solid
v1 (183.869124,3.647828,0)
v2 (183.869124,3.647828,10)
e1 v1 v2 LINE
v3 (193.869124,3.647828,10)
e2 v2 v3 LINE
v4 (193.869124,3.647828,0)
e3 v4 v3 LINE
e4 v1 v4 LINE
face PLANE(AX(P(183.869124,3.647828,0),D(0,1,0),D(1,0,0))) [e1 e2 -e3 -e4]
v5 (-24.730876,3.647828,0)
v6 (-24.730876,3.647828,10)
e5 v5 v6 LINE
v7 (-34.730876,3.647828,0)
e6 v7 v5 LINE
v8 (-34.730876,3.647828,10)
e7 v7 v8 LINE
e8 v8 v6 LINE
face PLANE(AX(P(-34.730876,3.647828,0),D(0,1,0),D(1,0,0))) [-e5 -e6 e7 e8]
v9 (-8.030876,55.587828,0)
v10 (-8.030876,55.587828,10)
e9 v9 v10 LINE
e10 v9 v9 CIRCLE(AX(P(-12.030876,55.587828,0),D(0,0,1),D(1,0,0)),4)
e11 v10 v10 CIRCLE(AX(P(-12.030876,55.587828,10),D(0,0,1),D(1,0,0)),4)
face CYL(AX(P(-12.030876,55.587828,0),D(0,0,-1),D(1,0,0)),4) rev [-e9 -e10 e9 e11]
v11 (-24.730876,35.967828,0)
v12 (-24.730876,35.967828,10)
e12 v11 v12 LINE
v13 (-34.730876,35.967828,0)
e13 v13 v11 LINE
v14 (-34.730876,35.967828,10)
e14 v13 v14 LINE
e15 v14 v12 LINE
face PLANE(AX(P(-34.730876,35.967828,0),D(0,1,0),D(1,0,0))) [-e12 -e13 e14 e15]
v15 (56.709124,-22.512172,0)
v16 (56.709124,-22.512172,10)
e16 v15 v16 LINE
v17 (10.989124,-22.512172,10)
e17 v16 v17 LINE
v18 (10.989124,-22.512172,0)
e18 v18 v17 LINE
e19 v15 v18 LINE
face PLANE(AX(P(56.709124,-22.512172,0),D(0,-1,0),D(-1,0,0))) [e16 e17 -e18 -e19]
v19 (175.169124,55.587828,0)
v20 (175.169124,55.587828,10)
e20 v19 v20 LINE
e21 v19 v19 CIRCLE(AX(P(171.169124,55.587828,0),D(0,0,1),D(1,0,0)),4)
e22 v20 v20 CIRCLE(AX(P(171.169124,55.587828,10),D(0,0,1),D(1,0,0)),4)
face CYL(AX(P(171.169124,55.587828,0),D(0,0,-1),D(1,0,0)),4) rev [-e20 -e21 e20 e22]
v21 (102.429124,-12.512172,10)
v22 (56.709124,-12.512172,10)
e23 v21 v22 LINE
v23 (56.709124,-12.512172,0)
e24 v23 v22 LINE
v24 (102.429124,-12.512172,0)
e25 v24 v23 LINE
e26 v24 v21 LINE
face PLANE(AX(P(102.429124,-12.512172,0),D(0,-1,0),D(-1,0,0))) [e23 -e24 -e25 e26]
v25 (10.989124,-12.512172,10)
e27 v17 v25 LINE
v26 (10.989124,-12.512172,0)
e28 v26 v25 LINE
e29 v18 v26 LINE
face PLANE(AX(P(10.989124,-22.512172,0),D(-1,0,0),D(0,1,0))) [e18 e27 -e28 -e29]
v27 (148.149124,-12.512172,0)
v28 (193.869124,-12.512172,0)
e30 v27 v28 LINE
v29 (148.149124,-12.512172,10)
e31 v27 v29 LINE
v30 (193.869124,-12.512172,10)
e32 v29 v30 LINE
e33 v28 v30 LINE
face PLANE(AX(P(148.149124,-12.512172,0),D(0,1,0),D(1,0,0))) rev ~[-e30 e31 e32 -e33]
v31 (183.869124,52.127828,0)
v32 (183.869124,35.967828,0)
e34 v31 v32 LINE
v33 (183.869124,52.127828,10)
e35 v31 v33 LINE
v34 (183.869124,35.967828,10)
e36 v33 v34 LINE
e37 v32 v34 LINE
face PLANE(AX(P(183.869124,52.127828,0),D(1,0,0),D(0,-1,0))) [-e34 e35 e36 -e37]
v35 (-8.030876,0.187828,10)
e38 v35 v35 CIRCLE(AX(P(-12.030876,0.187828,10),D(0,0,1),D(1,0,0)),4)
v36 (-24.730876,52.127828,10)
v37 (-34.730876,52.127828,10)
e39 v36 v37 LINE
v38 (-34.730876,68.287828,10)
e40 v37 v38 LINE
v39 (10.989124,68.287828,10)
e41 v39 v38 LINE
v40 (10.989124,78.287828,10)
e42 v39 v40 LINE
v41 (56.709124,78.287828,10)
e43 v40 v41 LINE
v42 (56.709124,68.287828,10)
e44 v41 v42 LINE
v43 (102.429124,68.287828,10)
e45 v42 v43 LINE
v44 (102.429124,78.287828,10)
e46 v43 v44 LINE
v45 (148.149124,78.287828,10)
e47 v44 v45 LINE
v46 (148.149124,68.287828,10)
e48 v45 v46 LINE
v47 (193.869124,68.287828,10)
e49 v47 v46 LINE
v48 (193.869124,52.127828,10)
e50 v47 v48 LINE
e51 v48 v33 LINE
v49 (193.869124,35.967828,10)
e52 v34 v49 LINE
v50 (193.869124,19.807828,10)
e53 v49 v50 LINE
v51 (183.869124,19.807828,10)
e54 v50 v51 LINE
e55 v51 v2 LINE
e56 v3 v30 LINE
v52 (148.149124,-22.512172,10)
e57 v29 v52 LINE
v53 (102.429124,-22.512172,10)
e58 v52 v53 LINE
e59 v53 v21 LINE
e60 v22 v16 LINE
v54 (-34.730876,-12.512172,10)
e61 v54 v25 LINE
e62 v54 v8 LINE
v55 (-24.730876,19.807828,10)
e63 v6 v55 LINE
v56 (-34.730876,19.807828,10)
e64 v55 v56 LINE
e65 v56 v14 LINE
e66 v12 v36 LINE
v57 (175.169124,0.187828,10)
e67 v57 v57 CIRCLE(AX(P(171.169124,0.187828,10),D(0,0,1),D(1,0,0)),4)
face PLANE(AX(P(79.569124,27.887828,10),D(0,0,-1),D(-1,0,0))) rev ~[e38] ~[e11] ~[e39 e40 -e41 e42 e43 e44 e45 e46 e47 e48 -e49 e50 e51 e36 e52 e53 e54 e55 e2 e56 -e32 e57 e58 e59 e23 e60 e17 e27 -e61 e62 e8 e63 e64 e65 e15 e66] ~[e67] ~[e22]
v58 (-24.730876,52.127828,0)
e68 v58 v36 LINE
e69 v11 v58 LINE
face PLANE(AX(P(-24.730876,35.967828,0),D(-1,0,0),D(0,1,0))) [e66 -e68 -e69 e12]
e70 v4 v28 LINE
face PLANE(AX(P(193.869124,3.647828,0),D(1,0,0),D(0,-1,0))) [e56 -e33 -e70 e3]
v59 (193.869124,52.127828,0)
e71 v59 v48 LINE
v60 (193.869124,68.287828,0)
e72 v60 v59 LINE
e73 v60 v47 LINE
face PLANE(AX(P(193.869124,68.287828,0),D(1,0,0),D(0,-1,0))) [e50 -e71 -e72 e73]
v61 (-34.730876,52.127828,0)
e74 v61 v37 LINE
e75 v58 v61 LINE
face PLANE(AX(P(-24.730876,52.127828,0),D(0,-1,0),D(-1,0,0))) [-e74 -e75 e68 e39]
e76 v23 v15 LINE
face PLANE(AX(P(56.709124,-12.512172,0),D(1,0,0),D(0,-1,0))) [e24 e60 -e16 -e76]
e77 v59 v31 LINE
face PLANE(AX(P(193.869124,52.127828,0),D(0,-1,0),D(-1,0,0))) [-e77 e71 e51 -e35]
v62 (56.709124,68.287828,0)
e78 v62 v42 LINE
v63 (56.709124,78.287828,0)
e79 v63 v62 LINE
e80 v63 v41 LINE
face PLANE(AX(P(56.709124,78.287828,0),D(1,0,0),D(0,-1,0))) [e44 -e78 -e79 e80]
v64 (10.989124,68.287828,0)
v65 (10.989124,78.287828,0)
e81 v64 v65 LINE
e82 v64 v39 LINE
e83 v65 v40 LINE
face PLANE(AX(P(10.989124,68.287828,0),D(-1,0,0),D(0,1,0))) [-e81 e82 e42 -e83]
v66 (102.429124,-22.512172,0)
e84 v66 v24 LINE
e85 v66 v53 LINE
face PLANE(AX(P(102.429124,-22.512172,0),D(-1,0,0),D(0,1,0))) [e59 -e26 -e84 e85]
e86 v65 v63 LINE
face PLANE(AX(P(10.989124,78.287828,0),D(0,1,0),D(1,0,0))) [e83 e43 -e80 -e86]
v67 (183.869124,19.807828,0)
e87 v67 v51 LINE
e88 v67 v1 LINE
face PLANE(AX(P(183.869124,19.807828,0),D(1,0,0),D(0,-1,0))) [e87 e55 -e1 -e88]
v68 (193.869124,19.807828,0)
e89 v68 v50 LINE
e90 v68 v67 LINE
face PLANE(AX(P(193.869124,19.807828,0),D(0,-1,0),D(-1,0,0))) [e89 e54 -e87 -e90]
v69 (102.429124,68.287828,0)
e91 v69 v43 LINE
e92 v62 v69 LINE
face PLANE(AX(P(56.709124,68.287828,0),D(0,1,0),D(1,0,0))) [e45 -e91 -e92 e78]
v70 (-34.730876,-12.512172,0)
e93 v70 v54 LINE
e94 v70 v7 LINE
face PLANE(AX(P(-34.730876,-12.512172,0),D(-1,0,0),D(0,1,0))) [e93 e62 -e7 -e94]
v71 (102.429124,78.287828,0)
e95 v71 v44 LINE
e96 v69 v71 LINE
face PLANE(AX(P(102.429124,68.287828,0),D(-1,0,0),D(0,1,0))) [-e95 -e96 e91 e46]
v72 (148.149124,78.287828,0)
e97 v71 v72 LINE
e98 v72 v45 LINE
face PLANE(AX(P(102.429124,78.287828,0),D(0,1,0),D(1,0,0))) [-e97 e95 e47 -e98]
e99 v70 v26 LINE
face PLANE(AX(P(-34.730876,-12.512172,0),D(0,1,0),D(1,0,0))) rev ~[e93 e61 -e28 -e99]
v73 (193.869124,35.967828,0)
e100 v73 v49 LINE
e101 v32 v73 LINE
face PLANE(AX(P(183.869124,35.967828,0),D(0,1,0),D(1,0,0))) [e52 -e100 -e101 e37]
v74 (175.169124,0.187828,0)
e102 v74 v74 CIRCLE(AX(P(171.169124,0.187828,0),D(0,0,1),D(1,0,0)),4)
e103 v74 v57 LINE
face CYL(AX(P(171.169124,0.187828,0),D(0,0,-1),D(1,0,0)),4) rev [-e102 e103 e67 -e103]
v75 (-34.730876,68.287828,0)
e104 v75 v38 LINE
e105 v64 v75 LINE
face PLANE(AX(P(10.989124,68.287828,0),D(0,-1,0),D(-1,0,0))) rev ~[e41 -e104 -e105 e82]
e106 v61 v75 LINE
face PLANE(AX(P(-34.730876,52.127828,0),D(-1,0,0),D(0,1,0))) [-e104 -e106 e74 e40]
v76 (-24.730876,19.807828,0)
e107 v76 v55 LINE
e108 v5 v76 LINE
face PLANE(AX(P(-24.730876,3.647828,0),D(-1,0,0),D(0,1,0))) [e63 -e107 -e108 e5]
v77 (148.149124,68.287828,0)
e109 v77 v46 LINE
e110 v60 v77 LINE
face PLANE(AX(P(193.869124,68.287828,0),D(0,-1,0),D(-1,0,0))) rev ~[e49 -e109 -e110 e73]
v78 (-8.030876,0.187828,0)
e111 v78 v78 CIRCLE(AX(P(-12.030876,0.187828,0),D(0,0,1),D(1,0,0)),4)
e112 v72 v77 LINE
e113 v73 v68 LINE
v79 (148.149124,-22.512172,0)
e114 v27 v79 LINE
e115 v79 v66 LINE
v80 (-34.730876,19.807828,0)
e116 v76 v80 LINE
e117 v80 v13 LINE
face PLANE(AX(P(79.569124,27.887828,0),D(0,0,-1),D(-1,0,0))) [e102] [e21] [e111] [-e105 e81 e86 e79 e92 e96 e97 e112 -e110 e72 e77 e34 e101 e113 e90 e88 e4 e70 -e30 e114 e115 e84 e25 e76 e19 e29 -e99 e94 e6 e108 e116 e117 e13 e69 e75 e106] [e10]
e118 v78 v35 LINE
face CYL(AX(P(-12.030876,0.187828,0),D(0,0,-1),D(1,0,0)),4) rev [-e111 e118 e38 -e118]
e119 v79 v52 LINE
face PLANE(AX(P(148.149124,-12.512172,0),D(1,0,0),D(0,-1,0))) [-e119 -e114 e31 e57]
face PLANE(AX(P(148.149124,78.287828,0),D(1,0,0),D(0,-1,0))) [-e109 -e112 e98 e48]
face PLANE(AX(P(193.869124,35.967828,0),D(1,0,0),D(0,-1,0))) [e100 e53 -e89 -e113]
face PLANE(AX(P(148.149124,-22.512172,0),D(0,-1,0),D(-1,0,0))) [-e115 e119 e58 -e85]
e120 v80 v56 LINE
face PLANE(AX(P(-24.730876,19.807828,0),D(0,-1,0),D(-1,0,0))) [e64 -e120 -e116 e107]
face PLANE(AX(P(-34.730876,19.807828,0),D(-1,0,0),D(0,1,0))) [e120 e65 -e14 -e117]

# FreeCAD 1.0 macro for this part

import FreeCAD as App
import Part
import Sketcher
from FreeCAD import Vector
Q = App.Units.Quantity


def add_polygon(sketch, points):
    """Adds a closed chain of lines whose ends are joined by coincident constraints."""
    first, n = sketch.GeometryCount, len(points)
    for a, b in zip(points, points[1:] + points[:1]):
        sketch.addGeometry(Part.LineSegment(App.Vector(*a, 0), App.Vector(*b, 0)), False)
    for i in range(n):
        sketch.addConstraint(Sketcher.Constraint("Coincident", first + i, 2, first + (i + 1) % n, 1))

doc = App.newDocument("Part")
body = doc.addObject("PartDesign::Body", "Body")

# Sketch on XY plane
sketch1 = body.newObject("Sketcher::SketchObject", "Sketch")
sketch1.AttachmentSupport = (doc.getObject("XY_Plane"), [""])
sketch1.MapMode = "FlatFace"
add_polygon(sketch1, [(56.7, -12.5), (102.4, -12.5), (102.4, -22.5), (148.1, -22.5), (148.1, -12.5), (193.9, -12.5), (193.9, 3.6), (183.9, 3.6), (183.9, 19.8), (193.9, 19.8), (193.9, 36), (183.9, 36), (183.9, 52.1), (193.9, 52.1), (193.9, 68.3), (148.1, 68.3), (148.1, 78.3), (102.4, 78.3), (102.4, 68.3), (56.7, 68.3), (56.7, 78.3), (11, 78.3), (11, 68.3), (-34.7, 68.3), (-34.7, 52.1), (-24.7, 52.1), (-24.7, 36), (-34.7, 36), (-34.7, 19.8), (-24.7, 19.8), (-24.7, 3.6), (-34.7, 3.6), (-34.7, -12.5), (11, -12.5), (11, -22.5), (56.7, -22.5)])  # lines 0-35
sketch1.addGeometry(Part.Circle(Vector(171.2, 0.2, 0), Vector(0, 0, 1), 4), False)  # 36
sketch1.addGeometry(Part.Circle(Vector(-12, 0.2, 0), Vector(0, 0, 1), 4), False)  # 37
sketch1.addGeometry(Part.Circle(Vector(171.2, 55.6, 0), Vector(0, 0, 1), 4), False)  # 38
sketch1.addGeometry(Part.Circle(Vector(-12, 55.6, 0), Vector(0, 0, 1), 4), False)  # 39
sketch1.addConstraint([
    Sketcher.Constraint("Horizontal", 0),
    Sketcher.Constraint("Vertical", 1),
    Sketcher.Constraint("Horizontal", 2),
    Sketcher.Constraint("Vertical", 3),
    Sketcher.Constraint("Horizontal", 4),
    Sketcher.Constraint("Vertical", 5),
    Sketcher.Constraint("Horizontal", 6),
    Sketcher.Constraint("Vertical", 7),
    Sketcher.Constraint("Horizontal", 8),
    Sketcher.Constraint("Vertical", 9),
    Sketcher.Constraint("Horizontal", 10),
    Sketcher.Constraint("Vertical", 11),
    Sketcher.Constraint("Horizontal", 12),
    Sketcher.Constraint("Vertical", 13),
    Sketcher.Constraint("Horizontal", 14),
    Sketcher.Constraint("Vertical", 15),
    Sketcher.Constraint("Horizontal", 16),
    Sketcher.Constraint("Vertical", 17),
    Sketcher.Constraint("Horizontal", 18),
    Sketcher.Constraint("Vertical", 19),
    Sketcher.Constraint("Horizontal", 20),
    Sketcher.Constraint("Vertical", 21),
    Sketcher.Constraint("Horizontal", 22),
    Sketcher.Constraint("Vertical", 23),
    Sketcher.Constraint("Horizontal", 24),
    Sketcher.Constraint("Vertical", 25),
    Sketcher.Constraint("Horizontal", 26),
    Sketcher.Constraint("Vertical", 27),
    Sketcher.Constraint("Horizontal", 28),
    Sketcher.Constraint("Vertical", 29),
    Sketcher.Constraint("Horizontal", 30),
    Sketcher.Constraint("Vertical", 31),
    Sketcher.Constraint("Horizontal", 32),
    Sketcher.Constraint("Vertical", 33),
    Sketcher.Constraint("Horizontal", 34),
    Sketcher.Constraint("Vertical", 35),
    Sketcher.Constraint("Equal", 36, 37),
    Sketcher.Constraint("Equal", 37, 38),
    Sketcher.Constraint("Equal", 38, 39),
    Sketcher.Constraint("Horizontal", 36, 3, 37, 3),
    Sketcher.Constraint("Horizontal", 38, 3, 39, 3),
    Sketcher.Constraint("Horizontal", 0, 2, 3, 2),
    Sketcher.Constraint("Horizontal", 14, 2, 17, 2),
    Sketcher.Constraint("Horizontal", 16, 2, 19, 2),
    Sketcher.Constraint("Horizontal", 18, 2, 21, 2),
    Sketcher.Constraint("Horizontal", 12, 2, 23, 2),
    Sketcher.Constraint("Horizontal", 10, 2, 25, 2),
    Sketcher.Constraint("Horizontal", 8, 2, 27, 2),
    Sketcher.Constraint("Horizontal", 6, 2, 29, 2),
    Sketcher.Constraint("Horizontal", 4, 2, 31, 2),
    Sketcher.Constraint("Horizontal", 2, 2, 33, 2),
    Sketcher.Constraint("Vertical", 36, 3, 38, 3),
    Sketcher.Constraint("Vertical", 37, 3, 39, 3),
    Sketcher.Constraint("Vertical", 5, 2, 8, 2),
    Sketcher.Constraint("Vertical", 7, 2, 10, 2),
    Sketcher.Constraint("Vertical", 9, 2, 12, 2),
    Sketcher.Constraint("Vertical", 3, 2, 14, 2),
    Sketcher.Constraint("Vertical", 1, 2, 16, 2),
    Sketcher.Constraint("Vertical", 23, 2, 26, 2),
    Sketcher.Constraint("Vertical", 25, 2, 28, 2),
    Sketcher.Constraint("Vertical", 27, 2, 30, 2),
    Sketcher.Constraint("Vertical", 21, 2, 32, 2),
    Sketcher.Constraint("Vertical", 19, 2, 34, 2),
    Sketcher.Constraint("Equal", 0, 2),
    Sketcher.Constraint("Equal", 2, 4),
    Sketcher.Constraint("Equal", 18, 20),
    Sketcher.Constraint("Equal", 20, 22),
    Sketcher.Constraint("Equal", 12, 24),
    Sketcher.Constraint("Equal", 30, 1),
    Sketcher.Constraint("Equal", 5, 7),
    Sketcher.Constraint("Equal", 7, 9),
    Sketcher.Constraint("Equal", 9, 11),
    Sketcher.Constraint("Equal", 11, 13),
    Sketcher.Constraint("Equal", 3, 15),
    Sketcher.Constraint("Diameter", 36, Q("8 mm")),
    Sketcher.Constraint("DistanceX", 6, 2, 6, 1, Q("10 mm")),
    Sketcher.Constraint("DistanceX", 0, 1, 0, 2, Q("45.72 mm")),
    Sketcher.Constraint("DistanceY", 5, 1, 5, 2, Q("16.16 mm")),
    Sketcher.Constraint("DistanceX", 37, 3, 36, 3, Q("183.2 mm")),
    Sketcher.Constraint("DistanceY", 36, 3, 38, 3, Q("55.4 mm")),
    Sketcher.Constraint("DistanceY", 0, 2, 36, 3, Q("12.7 mm")),
    Sketcher.Constraint("DistanceX", 36, 3, 4, 2, Q("22.7 mm")),
    Sketcher.Constraint("DistanceX", -1, 1, 36, 3, Q("171.169124 mm")),
    Sketcher.Constraint("DistanceY", -1, 1, 36, 3, Q("0.187828 mm")),
])
pad1 = body.newObject("PartDesign::Pad", "Pad")
pad1.Profile = sketch1
pad1.Length = 10

doc.recompute()
